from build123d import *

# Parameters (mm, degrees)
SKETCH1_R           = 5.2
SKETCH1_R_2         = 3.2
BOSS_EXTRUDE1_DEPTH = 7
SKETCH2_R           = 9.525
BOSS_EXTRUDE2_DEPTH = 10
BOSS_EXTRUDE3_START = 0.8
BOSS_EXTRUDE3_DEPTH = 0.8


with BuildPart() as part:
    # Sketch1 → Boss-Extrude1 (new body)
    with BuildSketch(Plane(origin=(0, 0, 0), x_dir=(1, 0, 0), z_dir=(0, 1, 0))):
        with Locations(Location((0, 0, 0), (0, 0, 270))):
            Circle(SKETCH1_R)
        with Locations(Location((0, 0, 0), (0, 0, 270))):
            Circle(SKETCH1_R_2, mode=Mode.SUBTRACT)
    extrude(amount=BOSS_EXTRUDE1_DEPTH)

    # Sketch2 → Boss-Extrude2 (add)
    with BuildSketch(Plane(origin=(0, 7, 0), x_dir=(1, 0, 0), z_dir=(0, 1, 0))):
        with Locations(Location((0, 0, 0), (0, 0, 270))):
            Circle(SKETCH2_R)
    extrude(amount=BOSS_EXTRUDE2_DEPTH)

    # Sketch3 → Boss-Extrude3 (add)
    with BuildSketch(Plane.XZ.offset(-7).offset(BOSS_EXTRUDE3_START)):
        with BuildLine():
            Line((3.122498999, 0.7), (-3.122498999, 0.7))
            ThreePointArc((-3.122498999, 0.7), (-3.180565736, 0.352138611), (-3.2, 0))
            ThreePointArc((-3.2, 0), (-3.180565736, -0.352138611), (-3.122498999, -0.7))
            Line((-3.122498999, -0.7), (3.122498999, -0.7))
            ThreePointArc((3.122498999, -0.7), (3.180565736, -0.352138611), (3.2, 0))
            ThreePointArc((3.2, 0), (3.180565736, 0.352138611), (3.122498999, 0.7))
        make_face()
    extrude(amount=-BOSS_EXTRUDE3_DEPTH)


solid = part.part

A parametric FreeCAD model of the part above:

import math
import FreeCAD as App
import Part
import Sketcher
from FreeCAD import Vector
Q = App.Units.Quantity

doc = App.newDocument("Part")
body = doc.addObject("PartDesign::Body", "Body")

sketch1 = body.newObject("Sketcher::SketchObject", "Sketch")
sketch1.AttachmentSupport = (doc.getObject("XZ_Plane"), [""])
sketch1.MapMode = "FlatFace"
sketch1.addGeometry(Part.Circle(Vector(0, 0, 0), Vector(0, 0, 1), 5.2), False)
sketch1.addGeometry(Part.Circle(Vector(0, 0, 0), Vector(0, 0, 1), 3.2), False)
sketch1.addConstraint(Sketcher.Constraint("Coincident", 0, 3, -1, 1))
sketch1.addConstraint(Sketcher.Constraint("Coincident", 1, 3, -1, 1))
sketch1.addConstraint(Sketcher.Constraint("Diameter", 0, Q("10.4 mm")))
sketch1.addConstraint(Sketcher.Constraint("Diameter", 1, Q("6.4 mm")))
pad1 = body.newObject("PartDesign::Pad", "Pad")
pad1.Profile = sketch1
pad1.Length = 7
pad1.Reversed = True

sketch2 = body.newObject("Sketcher::SketchObject", "Sketch001")
sketch2.AttachmentSupport = (doc.getObject("XZ_Plane"), [""])
sketch2.MapMode = "FlatFace"
sketch2.AttachmentOffset = App.Placement(Vector(0, 0, -7), App.Rotation())
sketch2.addGeometry(Part.Circle(Vector(0, 0, 0), Vector(0, 0, 1), 9.525), False)
sketch2.addConstraint(Sketcher.Constraint("Coincident", 0, 3, -1, 1))
sketch2.addConstraint(Sketcher.Constraint("Diameter", 0, Q("19.05 mm")))
pad2 = body.newObject("PartDesign::Pad", "Pad001")
pad2.Profile = sketch2
pad2.Length = 10
pad2.Reversed = True

sketch3 = body.newObject("Sketcher::SketchObject", "Sketch002")
sketch3.AttachmentSupport = (doc.getObject("XZ_Plane"), [""])
sketch3.MapMode = "FlatFace"
sketch3.AttachmentOffset = App.Placement(Vector(0, 0, -6.2), App.Rotation())
sketch3.addGeometry(Part.LineSegment(Vector(3.122499, 0.7, 0), Vector(-3.122499, 0.7, 0)), False)
sketch3.addGeometry(Part.ArcOfCircle(Part.Circle(Vector(0, 0, 0), Vector(0, 0, 1), 3.2), math.radians(167.364375), math.radians(180)), False)
sketch3.addGeometry(Part.ArcOfCircle(Part.Circle(Vector(0, 0, 0), Vector(0, 0, 1), 3.2), math.radians(180), math.radians(192.635625)), False)
sketch3.addGeometry(Part.LineSegment(Vector(-3.122499, -0.7, 0), Vector(3.122499, -0.7, 0)), False)
sketch3.addGeometry(Part.ArcOfCircle(Part.Circle(Vector(0, 0, 0), Vector(0, 0, 1), 3.2), math.radians(-12.635625), math.radians(0)), False)
sketch3.addGeometry(Part.ArcOfCircle(Part.Circle(Vector(0, 0, 0), Vector(0, 0, 1), 3.2), math.radians(0), math.radians(12.635625)), False)
sketch3.addConstraint(Sketcher.Constraint("Coincident", 0, 2, 1, 1))
sketch3.addConstraint(Sketcher.Constraint("Tangent", 1, 2, 2, 1))
sketch3.addConstraint(Sketcher.Constraint("Coincident", 2, 2, 3, 1))
sketch3.addConstraint(Sketcher.Constraint("Coincident", 3, 2, 4, 1))
sketch3.addConstraint(Sketcher.Constraint("Tangent", 4, 2, 5, 1))
sketch3.addConstraint(Sketcher.Constraint("Coincident", 5, 2, 0, 1))
sketch3.addConstraint(Sketcher.Constraint("Horizontal", 0))
sketch3.addConstraint(Sketcher.Constraint("Horizontal", 3))
sketch3.addConstraint(Sketcher.Constraint("Coincident", 1, 3, -1, 1))
sketch3.addConstraint(Sketcher.Constraint("Coincident", 4, 3, -1, 1))
sketch3.addConstraint(Sketcher.Constraint("Equal", 1, 2))
sketch3.addConstraint(Sketcher.Constraint("Equal", 2, 4))
sketch3.addConstraint(Sketcher.Constraint("Equal", 4, 5))
sketch3.addConstraint(Sketcher.Constraint("PointOnObject", 1, 2, -1))
sketch3.addConstraint(Sketcher.Constraint("PointOnObject", 4, 2, -1))
sketch3.addConstraint(Sketcher.Constraint("Vertical", 0, 2, 2, 2))
sketch3.addConstraint(Sketcher.Constraint("Radius", 1, Q("3.2 mm")))
sketch3.addConstraint(Sketcher.Constraint("DistanceY", -1, 1, 0, 2, Q("0.7 mm")))
pad3 = body.newObject("PartDesign::Pad", "Pad002")
pad3.Profile = sketch3
pad3.Length = 0.8
pad3.Reversed = True

doc.recompute()
